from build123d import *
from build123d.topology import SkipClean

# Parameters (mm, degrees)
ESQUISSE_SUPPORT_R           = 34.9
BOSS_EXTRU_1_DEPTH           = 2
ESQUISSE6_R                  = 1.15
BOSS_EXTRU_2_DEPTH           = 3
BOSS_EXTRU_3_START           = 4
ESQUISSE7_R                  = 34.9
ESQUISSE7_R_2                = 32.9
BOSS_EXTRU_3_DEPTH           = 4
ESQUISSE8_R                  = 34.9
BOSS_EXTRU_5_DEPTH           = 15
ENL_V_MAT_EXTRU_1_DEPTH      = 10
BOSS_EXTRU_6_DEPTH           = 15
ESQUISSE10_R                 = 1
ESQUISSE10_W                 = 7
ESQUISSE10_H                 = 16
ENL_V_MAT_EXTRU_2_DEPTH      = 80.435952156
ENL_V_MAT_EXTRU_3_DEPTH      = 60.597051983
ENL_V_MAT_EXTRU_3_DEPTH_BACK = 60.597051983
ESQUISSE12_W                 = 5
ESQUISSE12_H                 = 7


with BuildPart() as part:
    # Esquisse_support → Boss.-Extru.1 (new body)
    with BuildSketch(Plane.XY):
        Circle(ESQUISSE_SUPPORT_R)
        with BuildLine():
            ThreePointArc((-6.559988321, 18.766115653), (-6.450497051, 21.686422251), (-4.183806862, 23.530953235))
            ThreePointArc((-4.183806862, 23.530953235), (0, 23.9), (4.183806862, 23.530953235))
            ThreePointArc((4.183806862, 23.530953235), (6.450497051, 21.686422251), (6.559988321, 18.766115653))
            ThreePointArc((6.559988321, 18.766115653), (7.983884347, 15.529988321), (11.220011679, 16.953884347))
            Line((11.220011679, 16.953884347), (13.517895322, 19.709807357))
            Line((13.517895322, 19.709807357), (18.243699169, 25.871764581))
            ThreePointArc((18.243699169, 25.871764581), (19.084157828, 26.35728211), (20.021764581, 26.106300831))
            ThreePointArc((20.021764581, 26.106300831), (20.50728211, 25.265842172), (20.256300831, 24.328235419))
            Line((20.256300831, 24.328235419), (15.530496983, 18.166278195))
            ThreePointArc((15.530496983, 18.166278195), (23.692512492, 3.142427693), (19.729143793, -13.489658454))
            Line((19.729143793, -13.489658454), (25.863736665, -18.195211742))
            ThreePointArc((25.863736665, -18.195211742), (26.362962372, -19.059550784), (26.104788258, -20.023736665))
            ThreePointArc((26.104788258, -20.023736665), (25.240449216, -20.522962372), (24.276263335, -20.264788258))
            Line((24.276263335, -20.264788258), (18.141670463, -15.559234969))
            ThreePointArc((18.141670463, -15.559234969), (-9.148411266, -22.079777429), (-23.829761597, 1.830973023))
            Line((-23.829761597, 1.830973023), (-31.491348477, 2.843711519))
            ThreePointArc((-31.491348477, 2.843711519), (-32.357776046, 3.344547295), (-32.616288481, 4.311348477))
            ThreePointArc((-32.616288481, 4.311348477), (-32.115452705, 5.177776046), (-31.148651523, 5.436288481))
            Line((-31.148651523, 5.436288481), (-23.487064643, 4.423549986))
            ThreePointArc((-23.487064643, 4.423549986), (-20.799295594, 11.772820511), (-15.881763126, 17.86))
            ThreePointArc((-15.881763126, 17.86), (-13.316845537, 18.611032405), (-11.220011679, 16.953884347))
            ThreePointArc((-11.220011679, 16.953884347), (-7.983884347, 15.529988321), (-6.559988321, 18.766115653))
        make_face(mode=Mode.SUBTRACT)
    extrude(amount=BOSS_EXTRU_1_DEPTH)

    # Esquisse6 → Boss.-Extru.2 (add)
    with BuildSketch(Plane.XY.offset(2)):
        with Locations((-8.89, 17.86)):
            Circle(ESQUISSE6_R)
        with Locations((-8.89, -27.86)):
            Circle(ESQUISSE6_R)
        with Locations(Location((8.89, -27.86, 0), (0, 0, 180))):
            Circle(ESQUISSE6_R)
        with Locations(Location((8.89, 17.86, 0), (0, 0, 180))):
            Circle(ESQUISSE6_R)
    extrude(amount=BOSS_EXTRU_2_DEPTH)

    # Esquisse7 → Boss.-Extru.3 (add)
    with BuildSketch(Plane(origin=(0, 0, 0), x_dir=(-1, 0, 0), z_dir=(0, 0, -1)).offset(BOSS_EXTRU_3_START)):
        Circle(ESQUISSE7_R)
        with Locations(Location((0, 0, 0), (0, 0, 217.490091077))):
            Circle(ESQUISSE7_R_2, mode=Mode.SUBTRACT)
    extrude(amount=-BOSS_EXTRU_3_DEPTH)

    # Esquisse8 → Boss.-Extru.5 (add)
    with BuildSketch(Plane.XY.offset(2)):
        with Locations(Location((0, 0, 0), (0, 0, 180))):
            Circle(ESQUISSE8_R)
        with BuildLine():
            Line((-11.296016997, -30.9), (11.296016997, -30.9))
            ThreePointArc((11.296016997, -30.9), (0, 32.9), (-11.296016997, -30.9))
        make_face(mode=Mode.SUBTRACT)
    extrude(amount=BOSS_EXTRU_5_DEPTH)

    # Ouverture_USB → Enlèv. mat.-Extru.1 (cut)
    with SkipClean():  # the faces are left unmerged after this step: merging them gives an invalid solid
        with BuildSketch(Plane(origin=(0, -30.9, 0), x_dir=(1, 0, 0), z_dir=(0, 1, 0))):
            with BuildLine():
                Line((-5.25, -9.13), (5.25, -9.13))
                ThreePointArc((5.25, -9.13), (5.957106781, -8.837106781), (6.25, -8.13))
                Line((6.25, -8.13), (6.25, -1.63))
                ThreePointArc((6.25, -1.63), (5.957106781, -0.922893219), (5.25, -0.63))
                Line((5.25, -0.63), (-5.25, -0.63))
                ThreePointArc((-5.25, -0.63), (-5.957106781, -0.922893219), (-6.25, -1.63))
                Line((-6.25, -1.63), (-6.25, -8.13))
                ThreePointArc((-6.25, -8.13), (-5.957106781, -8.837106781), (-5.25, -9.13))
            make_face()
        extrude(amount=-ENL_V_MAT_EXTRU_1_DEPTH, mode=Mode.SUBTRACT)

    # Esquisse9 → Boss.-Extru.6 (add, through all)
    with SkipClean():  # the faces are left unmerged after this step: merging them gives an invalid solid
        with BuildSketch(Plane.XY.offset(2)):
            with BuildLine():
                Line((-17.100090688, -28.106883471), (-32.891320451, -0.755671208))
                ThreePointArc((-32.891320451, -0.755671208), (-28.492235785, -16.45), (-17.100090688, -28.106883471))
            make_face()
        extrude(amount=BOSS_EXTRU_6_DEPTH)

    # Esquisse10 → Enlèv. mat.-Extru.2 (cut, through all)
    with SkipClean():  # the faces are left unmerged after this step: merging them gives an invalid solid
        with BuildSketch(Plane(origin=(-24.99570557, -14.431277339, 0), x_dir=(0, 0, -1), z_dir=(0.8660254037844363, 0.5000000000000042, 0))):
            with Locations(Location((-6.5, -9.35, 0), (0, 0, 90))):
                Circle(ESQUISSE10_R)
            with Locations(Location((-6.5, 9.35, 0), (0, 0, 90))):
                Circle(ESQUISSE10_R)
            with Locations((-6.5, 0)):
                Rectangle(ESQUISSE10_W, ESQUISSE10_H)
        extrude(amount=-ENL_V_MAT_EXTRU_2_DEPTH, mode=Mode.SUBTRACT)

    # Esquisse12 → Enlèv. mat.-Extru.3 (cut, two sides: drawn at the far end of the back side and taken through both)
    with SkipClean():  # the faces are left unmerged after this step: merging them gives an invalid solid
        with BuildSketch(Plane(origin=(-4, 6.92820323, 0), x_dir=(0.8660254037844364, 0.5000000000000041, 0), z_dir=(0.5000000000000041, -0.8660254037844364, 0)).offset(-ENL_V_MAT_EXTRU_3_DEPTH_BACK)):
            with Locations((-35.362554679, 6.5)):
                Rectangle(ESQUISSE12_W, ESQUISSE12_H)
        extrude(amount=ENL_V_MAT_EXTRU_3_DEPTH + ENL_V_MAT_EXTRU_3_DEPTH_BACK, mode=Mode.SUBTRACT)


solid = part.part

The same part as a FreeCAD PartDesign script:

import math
import FreeCAD as App
import Part
import Sketcher
from FreeCAD import Vector
Q = App.Units.Quantity


def add_polygon(sketch, points):
    """Adds a closed chain of lines whose ends are joined by coincident constraints."""
    first, n = sketch.GeometryCount, len(points)
    for a, b in zip(points, points[1:] + points[:1]):
        sketch.addGeometry(Part.LineSegment(App.Vector(*a, 0), App.Vector(*b, 0)), False)
    for i in range(n):
        sketch.addConstraint(Sketcher.Constraint("Coincident", first + i, 2, first + (i + 1) % n, 1))

doc = App.newDocument("Part")
params = doc.addObject("Spreadsheet::Sheet", "Params")
for row, (alias, value) in enumerate([
    ("sketch1_diameter", "69.8 mm"),
    ("sketch1_radius", "2.5 mm"),
    ("sketch1_radius2", "23.9 mm"),
    ("pad1_length", "2 mm"),
    ("sketch2_diameter", "2.3 mm"),
    ("pad2_length", "3 mm"),
    ("sketch3_diameter", "69.8 mm"),
    ("sketch3_diameter2", "65.8 mm"),
    ("pad3_length", "4 mm"),
    ("sketch4_diameter", "69.8 mm"),
    ("sketch4_radius", "32.9 mm"),
    ("pad4_length", "15 mm"),
    ("sketch5_radius", "1 mm"),
    ("sketch5_width", "10.5 mm"),
    ("sketch5_height", "6.5 mm"),
    ("pocket1_length", "10 mm"),
    ("sketch6_radius", "32.9 mm"),
    ("pad5_length", "15 mm"),
    ("sketch7_diameter", "2 mm"),
    ("sketch7_width", "7 mm"),
    ("sketch7_height", "16 mm"),
    ("sketch8_width", "5 mm"),
    ("sketch8_height", "7 mm"),
], start=1):
    params.set(f"A{row}", alias)
    params.set(f"B{row}", "=" + value)
    params.setAlias(f"B{row}", alias)

body = doc.addObject("PartDesign::Body", "Body")

# Sketch on XY plane
sketch1 = body.newObject("Sketcher::SketchObject", "Sketch")
sketch1.AttachmentSupport = (doc.getObject("XY_Plane"), [""])
sketch1.MapMode = "FlatFace"
sketch1.addGeometry(Part.Circle(Vector(0, 0, 0), Vector(0, 0, 1), 34.9), False)
sketch1.addGeometry(Part.ArcOfCircle(Part.Circle(Vector(-8.89, 17.86, 0), Vector(0, 0, 1), 2.5), math.radians(-158.749494), math.radians(21.250506)), False)
sketch1.addGeometry(Part.ArcOfCircle(Part.Circle(Vector(-3.280045, 20.105346, 0), Vector(0, 0, 1), 3.542819), math.radians(104.779324), math.radians(202.21064)), False)
sketch1.addGeometry(Part.ArcOfCircle(Part.Circle(Vector(0, 0, 0), Vector(0, 0, 1), 23.9), math.radians(79.91816), math.radians(100.08184)), False)
sketch1.addGeometry(Part.ArcOfCircle(Part.Circle(Vector(3.280045, 20.105346, 0), Vector(0, 0, 1), 3.542819), math.radians(-22.21064), math.radians(75.220676)), False)
sketch1.addGeometry(Part.ArcOfCircle(Part.Circle(Vector(8.89, 17.86, 0), Vector(0, 0, 1), 2.5), math.radians(158.749494), math.radians(338.749494)), False)
sketch1.addGeometry(Part.LineSegment(Vector(11.220012, 16.953884, 0), Vector(13.517895, 19.709807, 0)), False)
sketch1.addGeometry(Part.LineSegment(Vector(13.517895, 19.709807, 0), Vector(18.243699, 25.871765, 0)), False)
sketch1.addGeometry(Part.ArcOfCircle(Part.Circle(Vector(19.25, 25.1, 0), Vector(0, 0, 1), 1.268173), math.radians(52.514237), math.radians(142.514237)), False)
sketch1.addGeometry(Part.ArcOfCircle(Part.Circle(Vector(19.25, 25.1, 0), Vector(0, 0, 1), 1.268173), math.radians(-37.485763), math.radians(52.514237)), False)
sketch1.addGeometry(Part.LineSegment(Vector(20.256301, 24.328235, 0), Vector(15.530497, 18.166278, 0)), False)
sketch1.addGeometry(Part.ArcOfCircle(Part.Circle(Vector(0, 0, 0), Vector(0, 0, 1), 23.9), math.radians(-34.362084), math.radians(49.472602)), False)
sketch1.addGeometry(Part.LineSegment(Vector(19.729144, -13.489658, 0), Vector(25.863737, -18.195212, 0)), False)
sketch1.addGeometry(Part.ArcOfCircle(Part.Circle(Vector(25.07, -19.23, 0), Vector(0, 0, 1), 1.304149), math.radians(-37.490091), math.radians(52.509909)), False)
sketch1.addGeometry(Part.ArcOfCircle(Part.Circle(Vector(25.07, -19.23, 0), Vector(0, 0, 1), 1.304149), math.radians(-127.490091), math.radians(-37.490091)), False)
sketch1.addGeometry(Part.LineSegment(Vector(24.276263, -20.264788, 0), Vector(18.14167, -15.559235, 0)), False)
sketch1.addGeometry(Part.ArcOfCircle(Part.Circle(Vector(0, 0, 0), Vector(0, 0, 1), 23.9), math.radians(175.60628), math.radians(319.381902)), False)
sketch1.addGeometry(Part.LineSegment(Vector(-23.829762, 1.830973, 0), Vector(-31.491348, 2.843712, 0)), False)
sketch1.addGeometry(Part.ArcOfCircle(Part.Circle(Vector(-31.32, 4.14, 0), Vector(0, 0, 1), 1.307564), math.radians(172.470073), math.radians(262.470073)), False)
sketch1.addGeometry(Part.ArcOfCircle(Part.Circle(Vector(-31.32, 4.14, 0), Vector(0, 0, 1), 1.307564), math.radians(82.470073), math.radians(172.470073)), False)
sketch1.addGeometry(Part.LineSegment(Vector(-31.148652, 5.436288, 0), Vector(-23.487065, 4.42355, 0)), False)
sketch1.addGeometry(Part.ArcOfCircle(Part.Circle(Vector(0, 0, 0), Vector(0, 0, 1), 23.9), math.radians(131.644662), math.radians(169.333867)), False)
sketch1.addGeometry(Part.ArcOfCircle(Part.Circle(Vector(-13.872381, 15.752935, 0), Vector(0, 0, 1), 2.911587), math.radians(24.360245), math.radians(133.640632)), False)
sketch1.addConstraint(Sketcher.Constraint("Coincident", 1, 2, 2, 2))
sketch1.addConstraint(Sketcher.Constraint("Coincident", 2, 1, 3, 2))
sketch1.addConstraint(Sketcher.Constraint("Coincident", 3, 1, 4, 2))
sketch1.addConstraint(Sketcher.Constraint("Coincident", 4, 1, 5, 1))
sketch1.addConstraint(Sketcher.Constraint("Coincident", 5, 2, 6, 1))
sketch1.addConstraint(Sketcher.Constraint("Coincident", 6, 2, 7, 1))
sketch1.addConstraint(Sketcher.Constraint("Tangent", 7, 2, 8, 2))
sketch1.addConstraint(Sketcher.Constraint("Tangent", 8, 1, 9, 2))
sketch1.addConstraint(Sketcher.Constraint("Tangent", 9, 1, 10, 1))
sketch1.addConstraint(Sketcher.Constraint("Coincident", 10, 2, 11, 2))
sketch1.addConstraint(Sketcher.Constraint("Coincident", 11, 1, 12, 1))
sketch1.addConstraint(Sketcher.Constraint("Tangent", 12, 2, 13, 2))
sketch1.addConstraint(Sketcher.Constraint("Tangent", 13, 1, 14, 2))
sketch1.addConstraint(Sketcher.Constraint("Tangent", 14, 1, 15, 1))
sketch1.addConstraint(Sketcher.Constraint("Coincident", 15, 2, 16, 2))
sketch1.addConstraint(Sketcher.Constraint("Coincident", 16, 1, 17, 1))
sketch1.addConstraint(Sketcher.Constraint("Tangent", 17, 2, 18, 2))
sketch1.addConstraint(Sketcher.Constraint("Tangent", 18, 1, 19, 2))
sketch1.addConstraint(Sketcher.Constraint("Tangent", 19, 1, 20, 1))
sketch1.addConstraint(Sketcher.Constraint("Coincident", 20, 2, 21, 2))
sketch1.addConstraint(Sketcher.Constraint("Coincident", 21, 1, 22, 2))
sketch1.addConstraint(Sketcher.Constraint("Coincident", 22, 1, 1, 1))
sketch1.addConstraint(Sketcher.Constraint("Coincident", 0, 3, -1, 1))
sketch1.addConstraint(Sketcher.Constraint("Coincident", 3, 3, -1, 1))
sketch1.addConstraint(Sketcher.Constraint("Coincident", 11, 3, -1, 1))
sketch1.addConstraint(Sketcher.Constraint("Coincident", 16, 3, -1, 1))
sketch1.addConstraint(Sketcher.Constraint("Coincident", 21, 3, -1, 1))
sketch1.addConstraint(Sketcher.Constraint("Equal", 2, 4))
sketch1.addConstraint(Sketcher.Constraint("Equal", 1, 5))
sketch1.addConstraint(Sketcher.Constraint("Equal", 8, 9))
sketch1.addConstraint(Sketcher.Constraint("Equal", 3, 11))
sketch1.addConstraint(Sketcher.Constraint("Equal", 13, 14))
sketch1.addConstraint(Sketcher.Constraint("Equal", 11, 16))
sketch1.addConstraint(Sketcher.Constraint("Equal", 18, 19))
sketch1.addConstraint(Sketcher.Constraint("Equal", 16, 21))
sketch1.addConstraint(Sketcher.Constraint("Symmetric", 2, 3, 4, 3, -2))
sketch1.addConstraint(Sketcher.Constraint("Symmetric", 1, 3, 5, 3, -2))
sketch1.addConstraint(Sketcher.Constraint("Parallel", 7, 10))
sketch1.addConstraint(Sketcher.Constraint("Parallel", 12, 15))
sketch1.addConstraint(Sketcher.Constraint("Parallel", 17, 20))
sketch1.addConstraint(Sketcher.Constraint("Horizontal", 5, 3, 21, 1))
sketch1.addConstraint(Sketcher.Constraint("Horizontal", 5, 2, 22, 1))
sketch1.addConstraint(Sketcher.Constraint("Equal", 7, 10))
sketch1.addConstraint(Sketcher.Constraint("Equal", 12, 15))
sketch1.addConstraint(Sketcher.Constraint("Equal", 17, 20))
sketch1.addConstraint(Sketcher.Constraint("Diameter", 0, 69.8))
sketch1.addConstraint(Sketcher.Constraint("Radius", 1, 2.5))
sketch1.addConstraint(Sketcher.Constraint("Radius", 3, 23.9))
sketch1.addConstraint(Sketcher.Constraint("DistanceY", -1, 1, 8, 3, 25.1))
sketch1.addConstraint(Sketcher.Constraint("DistanceX", 1, 3, -1, 1, 8.89))
sketch1.addConstraint(Sketcher.Constraint("DistanceY", -1, 1, 1, 3, 17.86))
sketch1.addConstraint(Sketcher.Constraint("DistanceX", -1, 1, 8, 3, 19.25))
sketch1.addConstraint(Sketcher.Constraint("DistanceX", -1, 1, 13, 3, 25.07))
sketch1.addConstraint(Sketcher.Constraint("DistanceY", 13, 3, -1, 1, 19.23))
sketch1.addConstraint(Sketcher.Constraint("DistanceX", 18, 3, -1, 1, 31.32))
sketch1.addConstraint(Sketcher.Constraint("DistanceY", -1, 1, 18, 3, 4.14))
sketch1.addConstraint(Sketcher.Constraint("Radius", 2, 3.542819))
sketch1.addConstraint(Sketcher.Constraint("Radius", 13, 1.304149))
sketch1.addConstraint(Sketcher.Constraint("Radius", 8, 1.268173))
sketch1.addConstraint(Sketcher.Constraint("Radius", 18, 1.307564))
sketch1.addConstraint(Sketcher.Constraint("Radius", 22, 2.911587))
sketch1.addConstraint(Sketcher.Constraint("DistanceX", -1, 1, 7, 2, 18.243699))
sketch1.addConstraint(Sketcher.Constraint("DistanceY", -1, 1, 8, 1, 26.106301))
sketch1.addConstraint(Sketcher.Constraint("Distance", 6, 3.588228))
sketch1.addConstraint(Sketcher.Constraint("DistanceX", 1, 2, -1, 1, 6.559988))
sketch1.addConstraint(Sketcher.Constraint("DistanceX", -1, 1, 13, 1, 26.104788))
sketch1.addConstraint(Sketcher.Constraint("DistanceX", 18, 1, -1, 1, 32.616288))
sketch1.addConstraint(Sketcher.Constraint("DistanceX", 2, 3, 4, 3, 6.56009))
sketch1.setExpression("Constraints[45]", "Params.sketch1_diameter")
sketch1.setExpression("Constraints[46]", "Params.sketch1_radius")
sketch1.setExpression("Constraints[47]", "Params.sketch1_radius2")
pad1 = body.newObject("PartDesign::Pad", "Pad")
pad1.Profile = sketch1
pad1.setExpression("Length", "Params.pad1_length")

# Sketch on XY plane
sketch2 = body.newObject("Sketcher::SketchObject", "Sketch001")
sketch2.AttachmentSupport = (doc.getObject("XY_Plane"), [""])
sketch2.MapMode = "FlatFace"
sketch2.AttachmentOffset = App.Placement(Vector(0, 0, 2), App.Rotation())
sketch2.addGeometry(Part.Circle(Vector(-8.89, 17.86, 0), Vector(0, 0, 1), 1.15), False)
sketch2.addGeometry(Part.Circle(Vector(-8.89, -27.86, 0), Vector(0, 0, 1), 1.15), False)
sketch2.addGeometry(Part.Circle(Vector(8.89, -27.86, 0), Vector(0, 0, 1), 1.15), False)
sketch2.addGeometry(Part.Circle(Vector(8.89, 17.86, 0), Vector(0, 0, 1), 1.15), False)
sketch2.addConstraint(Sketcher.Constraint("Equal", 0, 1))
sketch2.addConstraint(Sketcher.Constraint("Equal", 1, 2))
sketch2.addConstraint(Sketcher.Constraint("Equal", 2, 3))
sketch2.addConstraint(Sketcher.Constraint("Symmetric", 1, 3, 2, 3, -2))
sketch2.addConstraint(Sketcher.Constraint("Symmetric", 0, 3, 3, 3, -2))
sketch2.addConstraint(Sketcher.Constraint("Vertical", 0, 3, 1, 3))
sketch2.addConstraint(Sketcher.Constraint("Diameter", 0, 2.3))
sketch2.addConstraint(Sketcher.Constraint("DistanceX", 0, 3, -1, 1, 8.89))
sketch2.addConstraint(Sketcher.Constraint("DistanceY", -1, 1, 0, 3, 17.86))
sketch2.addConstraint(Sketcher.Constraint("DistanceY", 1, 3, -1, 1, 27.86))
sketch2.setExpression("Constraints[6]", "Params.sketch2_diameter")
pad2 = body.newObject("PartDesign::Pad", "Pad001")
pad2.Profile = sketch2
pad2.setExpression("Length", "Params.pad2_length")

# Sketch on XY plane
sketch3 = body.newObject("Sketcher::SketchObject", "Sketch002")
sketch3.AttachmentSupport = (doc.getObject("XY_Plane"), [""])
sketch3.MapMode = "FlatFace"
sketch3.AttachmentOffset = App.Placement(Vector(0, 0, -4), App.Rotation())
sketch3.addGeometry(Part.Circle(Vector(0, 0, 0), Vector(0, 0, 1), 34.9), False)
sketch3.addGeometry(Part.Circle(Vector(0, 0, 0), Vector(0, 0, 1), 32.9), False)
sketch3.addConstraint(Sketcher.Constraint("Coincident", 0, 3, -1, 1))
sketch3.addConstraint(Sketcher.Constraint("Coincident", 1, 3, -1, 1))
sketch3.addConstraint(Sketcher.Constraint("Diameter", 0, 69.8))
sketch3.addConstraint(Sketcher.Constraint("Diameter", 1, 65.8))
sketch3.setExpression("Constraints[2]", "Params.sketch3_diameter")
sketch3.setExpression("Constraints[3]", "Params.sketch3_diameter2")
pad3 = body.newObject("PartDesign::Pad", "Pad002")
pad3.Profile = sketch3
pad3.setExpression("Length", "Params.pad3_length")

# Sketch on XY plane
sketch4 = body.newObject("Sketcher::SketchObject", "Sketch003")
sketch4.AttachmentSupport = (doc.getObject("XY_Plane"), [""])
sketch4.MapMode = "FlatFace"
sketch4.AttachmentOffset = App.Placement(Vector(0, 0, 2), App.Rotation())
sketch4.addGeometry(Part.Circle(Vector(0, 0, 0), Vector(0, 0, 1), 34.9), False)
sketch4.addGeometry(Part.LineSegment(Vector(11.296017, -30.9, 0), Vector(-11.296017, -30.9, 0)), False)
sketch4.addGeometry(Part.ArcOfCircle(Part.Circle(Vector(0, 0, 0), Vector(0, 0, 1), 32.9), math.radians(-69.919261), math.radians(249.919261)), False)
sketch4.addConstraint(Sketcher.Constraint("Coincident", 1, 1, 2, 1))
sketch4.addConstraint(Sketcher.Constraint("Coincident", 2, 2, 1, 2))
sketch4.addConstraint(Sketcher.Constraint("Horizontal", 1))
sketch4.addConstraint(Sketcher.Constraint("Coincident", 0, 3, -1, 1))
sketch4.addConstraint(Sketcher.Constraint("Coincident", 2, 3, -1, 1))
sketch4.addConstraint(Sketcher.Constraint("Diameter", 0, 69.8))
sketch4.addConstraint(Sketcher.Constraint("Radius", 2, 32.9))
sketch4.addConstraint(Sketcher.Constraint("DistanceY", 1, 1, -1, 1, 30.9))
sketch4.setExpression("Constraints[5]", "Params.sketch4_diameter")
sketch4.setExpression("Constraints[6]", "Params.sketch4_radius")
pad4 = body.newObject("PartDesign::Pad", "Pad003")
pad4.Profile = sketch4
pad4.setExpression("Length", "Params.pad4_length")

# Sketch on XZ plane
sketch5 = body.newObject("Sketcher::SketchObject", "Sketch004")
sketch5.AttachmentSupport = (doc.getObject("XZ_Plane"), [""])
sketch5.MapMode = "FlatFace"
sketch5.AttachmentOffset = App.Placement(Vector(0, 0, 30.9), App.Rotation())
sketch5.addGeometry(Part.LineSegment(Vector(-5.25, 9.13, 0), Vector(5.25, 9.13, 0)), False)
sketch5.addGeometry(Part.ArcOfCircle(Part.Circle(Vector(5.25, 8.13, 0), Vector(0, 0, 1), 1), math.radians(0), math.radians(90)), False)
sketch5.addGeometry(Part.LineSegment(Vector(6.25, 8.13, 0), Vector(6.25, 1.63, 0)), False)
sketch5.addGeometry(Part.ArcOfCircle(Part.Circle(Vector(5.25, 1.63, 0), Vector(0, 0, 1), 1), math.radians(-90), math.radians(0)), False)
sketch5.addGeometry(Part.LineSegment(Vector(5.25, 0.63, 0), Vector(-5.25, 0.63, 0)), False)
sketch5.addGeometry(Part.ArcOfCircle(Part.Circle(Vector(-5.25, 1.63, 0), Vector(0, 0, 1), 1), math.radians(-180), math.radians(-90)), False)
sketch5.addGeometry(Part.LineSegment(Vector(-6.25, 1.63, 0), Vector(-6.25, 8.13, 0)), False)
sketch5.addGeometry(Part.ArcOfCircle(Part.Circle(Vector(-5.25, 8.13, 0), Vector(0, 0, 1), 1), math.radians(90), math.radians(180)), False)
sketch5.addConstraint(Sketcher.Constraint("Tangent", 0, 2, 1, 2))
sketch5.addConstraint(Sketcher.Constraint("Tangent", 1, 1, 2, 1))
sketch5.addConstraint(Sketcher.Constraint("Tangent", 2, 2, 3, 2))
sketch5.addConstraint(Sketcher.Constraint("Tangent", 3, 1, 4, 1))
sketch5.addConstraint(Sketcher.Constraint("Tangent", 4, 2, 5, 2))
sketch5.addConstraint(Sketcher.Constraint("Tangent", 5, 1, 6, 1))
sketch5.addConstraint(Sketcher.Constraint("Tangent", 6, 2, 7, 2))
sketch5.addConstraint(Sketcher.Constraint("Tangent", 7, 1, 0, 1))
sketch5.addConstraint(Sketcher.Constraint("Horizontal", 0))
sketch5.addConstraint(Sketcher.Constraint("Vertical", 2))
sketch5.addConstraint(Sketcher.Constraint("Horizontal", 4))
sketch5.addConstraint(Sketcher.Constraint("Vertical", 6))
sketch5.addConstraint(Sketcher.Constraint("Equal", 1, 3))
sketch5.addConstraint(Sketcher.Constraint("Equal", 3, 5))
sketch5.addConstraint(Sketcher.Constraint("Equal", 5, 7))
sketch5.addConstraint(Sketcher.Constraint("Radius", 1, 1.0))
sketch5.addConstraint(Sketcher.Constraint("DistanceX", 0, 1, 0, 2, 10.5))
sketch5.addConstraint(Sketcher.Constraint("DistanceY", 2, 2, 2, 1, 6.5))
sketch5.addConstraint(Sketcher.Constraint("DistanceX", -1, 1, 1, 3, 5.25))
sketch5.addConstraint(Sketcher.Constraint("DistanceY", -1, 1, 1, 3, 8.13))
sketch5.setExpression("Constraints[15]", "Params.sketch5_radius")
sketch5.setExpression("Constraints[16]", "Params.sketch5_width")
sketch5.setExpression("Constraints[17]", "Params.sketch5_height")
pocket1 = body.newObject("PartDesign::Pocket", "Pocket")
pocket1.Profile = sketch5
pocket1.setExpression("Length", "Params.pocket1_length")
pocket1.Reversed = True

# Sketch on XY plane
sketch6 = body.newObject("Sketcher::SketchObject", "Sketch005")
sketch6.AttachmentSupport = (doc.getObject("XY_Plane"), [""])
sketch6.MapMode = "FlatFace"
sketch6.AttachmentOffset = App.Placement(Vector(0, 0, 2), App.Rotation())
sketch6.addGeometry(Part.LineSegment(Vector(-17.100091, -28.106883, 0), Vector(-32.89132, -0.755671, 0)), False)
sketch6.addGeometry(Part.ArcOfCircle(Part.Circle(Vector(0, 0, 0), Vector(0, 0, 1), 32.9), math.radians(-178.683873), math.radians(-121.316127)), False)
sketch6.addConstraint(Sketcher.Constraint("Coincident", 0, 1, 1, 2))
sketch6.addConstraint(Sketcher.Constraint("Coincident", 1, 1, 0, 2))
sketch6.addConstraint(Sketcher.Constraint("Coincident", 1, 3, -1, 1))
sketch6.addConstraint(Sketcher.Constraint("Radius", 1, 32.9))
sketch6.addConstraint(Sketcher.Constraint("Angle", 0, Q("120 deg")))
sketch6.addConstraint(Sketcher.Constraint("Distance", 0, 31.58246))
sketch6.setExpression("Constraints[3]", "Params.sketch6_radius")
pad5 = body.newObject("PartDesign::Pad", "Pad004")
pad5.Profile = sketch6
pad5.setExpression("Length", "Params.pad5_length")

# Sketch on an angled plane
sketch7 = body.newObject("Sketcher::SketchObject", "Sketch006")
sketch7.Placement = App.Placement(Vector(-24.995706, -14.431277, 0), App.Rotation(Vector(0, 0, -1), Vector(-0.5, 0.866025404, 0), Vector(0.866025404, 0.5, 0), "ZXY"))
sketch7.addGeometry(Part.Circle(Vector(-6.5, -9.35, 0), Vector(0, 0, 1), 1), False)  # 0
sketch7.addGeometry(Part.Circle(Vector(-6.5, 9.35, 0), Vector(0, 0, 1), 1), False)  # 1
add_polygon(sketch7, [(-10, 8), (-10, -8), (-3, -8), (-3, 8)])  # lines 2-5
sketch7.addConstraint(Sketcher.Constraint("Vertical", 2))
sketch7.addConstraint(Sketcher.Constraint("Horizontal", 3))
sketch7.addConstraint(Sketcher.Constraint("Vertical", 4))
sketch7.addConstraint(Sketcher.Constraint("Horizontal", 5))
sketch7.addConstraint(Sketcher.Constraint("Equal", 0, 1))
sketch7.addConstraint(Sketcher.Constraint("Symmetric", 0, 3, 1, 3, -1))
sketch7.addConstraint(Sketcher.Constraint("Diameter", 0, 2.0))
sketch7.addConstraint(Sketcher.Constraint("DistanceX", 3, 1, 3, 2, 7.0))
sketch7.addConstraint(Sketcher.Constraint("DistanceY", 2, 2, 2, 1, 16.0))
sketch7.addConstraint(Sketcher.Constraint("DistanceX", 2, 2, -1, 1, 10.0))
sketch7.addConstraint(Sketcher.Constraint("DistanceY", 2, 2, -1, 1, 8.0))
sketch7.addConstraint(Sketcher.Constraint("DistanceX", 0, 3, -1, 1, 6.5))
sketch7.addConstraint(Sketcher.Constraint("DistanceY", 0, 3, 1, 3, 18.7))
sketch7.setExpression("Constraints[10]", "Params.sketch7_diameter")
sketch7.setExpression("Constraints[11]", "Params.sketch7_width")
sketch7.setExpression("Constraints[12]", "Params.sketch7_height")
pocket2 = body.newObject("PartDesign::Pocket", "Pocket001")
pocket2.Profile = sketch7
pocket2.Type = "ThroughAll"

# Sketch on an angled plane
sketch8 = body.newObject("Sketcher::SketchObject", "Sketch007")
sketch8.Placement = App.Placement(Vector(-4, 6.928203, 0), App.Rotation(Vector(0.866025404, 0.5, 0), Vector(0, 0, 1), Vector(0.5, -0.866025404, 0), "ZXY"))
add_polygon(sketch8, [(-37.862555, 10), (-37.862555, 3), (-32.862555, 3), (-32.862555, 10)])  # lines 0-3
sketch8.addConstraint(Sketcher.Constraint("Vertical", 0))
sketch8.addConstraint(Sketcher.Constraint("Horizontal", 1))
sketch8.addConstraint(Sketcher.Constraint("Vertical", 2))
sketch8.addConstraint(Sketcher.Constraint("Horizontal", 3))
sketch8.addConstraint(Sketcher.Constraint("DistanceX", 1, 1, 1, 2, 5.0))
sketch8.addConstraint(Sketcher.Constraint("DistanceY", 0, 2, 0, 1, 7.0))
sketch8.addConstraint(Sketcher.Constraint("DistanceY", -1, 1, 0, 2, 3.0))
sketch8.addConstraint(Sketcher.Constraint("DistanceX", 0, 2, -1, 1, 37.862555))
sketch8.setExpression("Constraints[8]", "Params.sketch8_width")
sketch8.setExpression("Constraints[9]", "Params.sketch8_height")
pocket3 = body.newObject("PartDesign::Pocket", "Pocket002")
pocket3.Profile = sketch8
pocket3.Type = "ThroughAll"
pocket3.Midplane = True

doc.recompute()
